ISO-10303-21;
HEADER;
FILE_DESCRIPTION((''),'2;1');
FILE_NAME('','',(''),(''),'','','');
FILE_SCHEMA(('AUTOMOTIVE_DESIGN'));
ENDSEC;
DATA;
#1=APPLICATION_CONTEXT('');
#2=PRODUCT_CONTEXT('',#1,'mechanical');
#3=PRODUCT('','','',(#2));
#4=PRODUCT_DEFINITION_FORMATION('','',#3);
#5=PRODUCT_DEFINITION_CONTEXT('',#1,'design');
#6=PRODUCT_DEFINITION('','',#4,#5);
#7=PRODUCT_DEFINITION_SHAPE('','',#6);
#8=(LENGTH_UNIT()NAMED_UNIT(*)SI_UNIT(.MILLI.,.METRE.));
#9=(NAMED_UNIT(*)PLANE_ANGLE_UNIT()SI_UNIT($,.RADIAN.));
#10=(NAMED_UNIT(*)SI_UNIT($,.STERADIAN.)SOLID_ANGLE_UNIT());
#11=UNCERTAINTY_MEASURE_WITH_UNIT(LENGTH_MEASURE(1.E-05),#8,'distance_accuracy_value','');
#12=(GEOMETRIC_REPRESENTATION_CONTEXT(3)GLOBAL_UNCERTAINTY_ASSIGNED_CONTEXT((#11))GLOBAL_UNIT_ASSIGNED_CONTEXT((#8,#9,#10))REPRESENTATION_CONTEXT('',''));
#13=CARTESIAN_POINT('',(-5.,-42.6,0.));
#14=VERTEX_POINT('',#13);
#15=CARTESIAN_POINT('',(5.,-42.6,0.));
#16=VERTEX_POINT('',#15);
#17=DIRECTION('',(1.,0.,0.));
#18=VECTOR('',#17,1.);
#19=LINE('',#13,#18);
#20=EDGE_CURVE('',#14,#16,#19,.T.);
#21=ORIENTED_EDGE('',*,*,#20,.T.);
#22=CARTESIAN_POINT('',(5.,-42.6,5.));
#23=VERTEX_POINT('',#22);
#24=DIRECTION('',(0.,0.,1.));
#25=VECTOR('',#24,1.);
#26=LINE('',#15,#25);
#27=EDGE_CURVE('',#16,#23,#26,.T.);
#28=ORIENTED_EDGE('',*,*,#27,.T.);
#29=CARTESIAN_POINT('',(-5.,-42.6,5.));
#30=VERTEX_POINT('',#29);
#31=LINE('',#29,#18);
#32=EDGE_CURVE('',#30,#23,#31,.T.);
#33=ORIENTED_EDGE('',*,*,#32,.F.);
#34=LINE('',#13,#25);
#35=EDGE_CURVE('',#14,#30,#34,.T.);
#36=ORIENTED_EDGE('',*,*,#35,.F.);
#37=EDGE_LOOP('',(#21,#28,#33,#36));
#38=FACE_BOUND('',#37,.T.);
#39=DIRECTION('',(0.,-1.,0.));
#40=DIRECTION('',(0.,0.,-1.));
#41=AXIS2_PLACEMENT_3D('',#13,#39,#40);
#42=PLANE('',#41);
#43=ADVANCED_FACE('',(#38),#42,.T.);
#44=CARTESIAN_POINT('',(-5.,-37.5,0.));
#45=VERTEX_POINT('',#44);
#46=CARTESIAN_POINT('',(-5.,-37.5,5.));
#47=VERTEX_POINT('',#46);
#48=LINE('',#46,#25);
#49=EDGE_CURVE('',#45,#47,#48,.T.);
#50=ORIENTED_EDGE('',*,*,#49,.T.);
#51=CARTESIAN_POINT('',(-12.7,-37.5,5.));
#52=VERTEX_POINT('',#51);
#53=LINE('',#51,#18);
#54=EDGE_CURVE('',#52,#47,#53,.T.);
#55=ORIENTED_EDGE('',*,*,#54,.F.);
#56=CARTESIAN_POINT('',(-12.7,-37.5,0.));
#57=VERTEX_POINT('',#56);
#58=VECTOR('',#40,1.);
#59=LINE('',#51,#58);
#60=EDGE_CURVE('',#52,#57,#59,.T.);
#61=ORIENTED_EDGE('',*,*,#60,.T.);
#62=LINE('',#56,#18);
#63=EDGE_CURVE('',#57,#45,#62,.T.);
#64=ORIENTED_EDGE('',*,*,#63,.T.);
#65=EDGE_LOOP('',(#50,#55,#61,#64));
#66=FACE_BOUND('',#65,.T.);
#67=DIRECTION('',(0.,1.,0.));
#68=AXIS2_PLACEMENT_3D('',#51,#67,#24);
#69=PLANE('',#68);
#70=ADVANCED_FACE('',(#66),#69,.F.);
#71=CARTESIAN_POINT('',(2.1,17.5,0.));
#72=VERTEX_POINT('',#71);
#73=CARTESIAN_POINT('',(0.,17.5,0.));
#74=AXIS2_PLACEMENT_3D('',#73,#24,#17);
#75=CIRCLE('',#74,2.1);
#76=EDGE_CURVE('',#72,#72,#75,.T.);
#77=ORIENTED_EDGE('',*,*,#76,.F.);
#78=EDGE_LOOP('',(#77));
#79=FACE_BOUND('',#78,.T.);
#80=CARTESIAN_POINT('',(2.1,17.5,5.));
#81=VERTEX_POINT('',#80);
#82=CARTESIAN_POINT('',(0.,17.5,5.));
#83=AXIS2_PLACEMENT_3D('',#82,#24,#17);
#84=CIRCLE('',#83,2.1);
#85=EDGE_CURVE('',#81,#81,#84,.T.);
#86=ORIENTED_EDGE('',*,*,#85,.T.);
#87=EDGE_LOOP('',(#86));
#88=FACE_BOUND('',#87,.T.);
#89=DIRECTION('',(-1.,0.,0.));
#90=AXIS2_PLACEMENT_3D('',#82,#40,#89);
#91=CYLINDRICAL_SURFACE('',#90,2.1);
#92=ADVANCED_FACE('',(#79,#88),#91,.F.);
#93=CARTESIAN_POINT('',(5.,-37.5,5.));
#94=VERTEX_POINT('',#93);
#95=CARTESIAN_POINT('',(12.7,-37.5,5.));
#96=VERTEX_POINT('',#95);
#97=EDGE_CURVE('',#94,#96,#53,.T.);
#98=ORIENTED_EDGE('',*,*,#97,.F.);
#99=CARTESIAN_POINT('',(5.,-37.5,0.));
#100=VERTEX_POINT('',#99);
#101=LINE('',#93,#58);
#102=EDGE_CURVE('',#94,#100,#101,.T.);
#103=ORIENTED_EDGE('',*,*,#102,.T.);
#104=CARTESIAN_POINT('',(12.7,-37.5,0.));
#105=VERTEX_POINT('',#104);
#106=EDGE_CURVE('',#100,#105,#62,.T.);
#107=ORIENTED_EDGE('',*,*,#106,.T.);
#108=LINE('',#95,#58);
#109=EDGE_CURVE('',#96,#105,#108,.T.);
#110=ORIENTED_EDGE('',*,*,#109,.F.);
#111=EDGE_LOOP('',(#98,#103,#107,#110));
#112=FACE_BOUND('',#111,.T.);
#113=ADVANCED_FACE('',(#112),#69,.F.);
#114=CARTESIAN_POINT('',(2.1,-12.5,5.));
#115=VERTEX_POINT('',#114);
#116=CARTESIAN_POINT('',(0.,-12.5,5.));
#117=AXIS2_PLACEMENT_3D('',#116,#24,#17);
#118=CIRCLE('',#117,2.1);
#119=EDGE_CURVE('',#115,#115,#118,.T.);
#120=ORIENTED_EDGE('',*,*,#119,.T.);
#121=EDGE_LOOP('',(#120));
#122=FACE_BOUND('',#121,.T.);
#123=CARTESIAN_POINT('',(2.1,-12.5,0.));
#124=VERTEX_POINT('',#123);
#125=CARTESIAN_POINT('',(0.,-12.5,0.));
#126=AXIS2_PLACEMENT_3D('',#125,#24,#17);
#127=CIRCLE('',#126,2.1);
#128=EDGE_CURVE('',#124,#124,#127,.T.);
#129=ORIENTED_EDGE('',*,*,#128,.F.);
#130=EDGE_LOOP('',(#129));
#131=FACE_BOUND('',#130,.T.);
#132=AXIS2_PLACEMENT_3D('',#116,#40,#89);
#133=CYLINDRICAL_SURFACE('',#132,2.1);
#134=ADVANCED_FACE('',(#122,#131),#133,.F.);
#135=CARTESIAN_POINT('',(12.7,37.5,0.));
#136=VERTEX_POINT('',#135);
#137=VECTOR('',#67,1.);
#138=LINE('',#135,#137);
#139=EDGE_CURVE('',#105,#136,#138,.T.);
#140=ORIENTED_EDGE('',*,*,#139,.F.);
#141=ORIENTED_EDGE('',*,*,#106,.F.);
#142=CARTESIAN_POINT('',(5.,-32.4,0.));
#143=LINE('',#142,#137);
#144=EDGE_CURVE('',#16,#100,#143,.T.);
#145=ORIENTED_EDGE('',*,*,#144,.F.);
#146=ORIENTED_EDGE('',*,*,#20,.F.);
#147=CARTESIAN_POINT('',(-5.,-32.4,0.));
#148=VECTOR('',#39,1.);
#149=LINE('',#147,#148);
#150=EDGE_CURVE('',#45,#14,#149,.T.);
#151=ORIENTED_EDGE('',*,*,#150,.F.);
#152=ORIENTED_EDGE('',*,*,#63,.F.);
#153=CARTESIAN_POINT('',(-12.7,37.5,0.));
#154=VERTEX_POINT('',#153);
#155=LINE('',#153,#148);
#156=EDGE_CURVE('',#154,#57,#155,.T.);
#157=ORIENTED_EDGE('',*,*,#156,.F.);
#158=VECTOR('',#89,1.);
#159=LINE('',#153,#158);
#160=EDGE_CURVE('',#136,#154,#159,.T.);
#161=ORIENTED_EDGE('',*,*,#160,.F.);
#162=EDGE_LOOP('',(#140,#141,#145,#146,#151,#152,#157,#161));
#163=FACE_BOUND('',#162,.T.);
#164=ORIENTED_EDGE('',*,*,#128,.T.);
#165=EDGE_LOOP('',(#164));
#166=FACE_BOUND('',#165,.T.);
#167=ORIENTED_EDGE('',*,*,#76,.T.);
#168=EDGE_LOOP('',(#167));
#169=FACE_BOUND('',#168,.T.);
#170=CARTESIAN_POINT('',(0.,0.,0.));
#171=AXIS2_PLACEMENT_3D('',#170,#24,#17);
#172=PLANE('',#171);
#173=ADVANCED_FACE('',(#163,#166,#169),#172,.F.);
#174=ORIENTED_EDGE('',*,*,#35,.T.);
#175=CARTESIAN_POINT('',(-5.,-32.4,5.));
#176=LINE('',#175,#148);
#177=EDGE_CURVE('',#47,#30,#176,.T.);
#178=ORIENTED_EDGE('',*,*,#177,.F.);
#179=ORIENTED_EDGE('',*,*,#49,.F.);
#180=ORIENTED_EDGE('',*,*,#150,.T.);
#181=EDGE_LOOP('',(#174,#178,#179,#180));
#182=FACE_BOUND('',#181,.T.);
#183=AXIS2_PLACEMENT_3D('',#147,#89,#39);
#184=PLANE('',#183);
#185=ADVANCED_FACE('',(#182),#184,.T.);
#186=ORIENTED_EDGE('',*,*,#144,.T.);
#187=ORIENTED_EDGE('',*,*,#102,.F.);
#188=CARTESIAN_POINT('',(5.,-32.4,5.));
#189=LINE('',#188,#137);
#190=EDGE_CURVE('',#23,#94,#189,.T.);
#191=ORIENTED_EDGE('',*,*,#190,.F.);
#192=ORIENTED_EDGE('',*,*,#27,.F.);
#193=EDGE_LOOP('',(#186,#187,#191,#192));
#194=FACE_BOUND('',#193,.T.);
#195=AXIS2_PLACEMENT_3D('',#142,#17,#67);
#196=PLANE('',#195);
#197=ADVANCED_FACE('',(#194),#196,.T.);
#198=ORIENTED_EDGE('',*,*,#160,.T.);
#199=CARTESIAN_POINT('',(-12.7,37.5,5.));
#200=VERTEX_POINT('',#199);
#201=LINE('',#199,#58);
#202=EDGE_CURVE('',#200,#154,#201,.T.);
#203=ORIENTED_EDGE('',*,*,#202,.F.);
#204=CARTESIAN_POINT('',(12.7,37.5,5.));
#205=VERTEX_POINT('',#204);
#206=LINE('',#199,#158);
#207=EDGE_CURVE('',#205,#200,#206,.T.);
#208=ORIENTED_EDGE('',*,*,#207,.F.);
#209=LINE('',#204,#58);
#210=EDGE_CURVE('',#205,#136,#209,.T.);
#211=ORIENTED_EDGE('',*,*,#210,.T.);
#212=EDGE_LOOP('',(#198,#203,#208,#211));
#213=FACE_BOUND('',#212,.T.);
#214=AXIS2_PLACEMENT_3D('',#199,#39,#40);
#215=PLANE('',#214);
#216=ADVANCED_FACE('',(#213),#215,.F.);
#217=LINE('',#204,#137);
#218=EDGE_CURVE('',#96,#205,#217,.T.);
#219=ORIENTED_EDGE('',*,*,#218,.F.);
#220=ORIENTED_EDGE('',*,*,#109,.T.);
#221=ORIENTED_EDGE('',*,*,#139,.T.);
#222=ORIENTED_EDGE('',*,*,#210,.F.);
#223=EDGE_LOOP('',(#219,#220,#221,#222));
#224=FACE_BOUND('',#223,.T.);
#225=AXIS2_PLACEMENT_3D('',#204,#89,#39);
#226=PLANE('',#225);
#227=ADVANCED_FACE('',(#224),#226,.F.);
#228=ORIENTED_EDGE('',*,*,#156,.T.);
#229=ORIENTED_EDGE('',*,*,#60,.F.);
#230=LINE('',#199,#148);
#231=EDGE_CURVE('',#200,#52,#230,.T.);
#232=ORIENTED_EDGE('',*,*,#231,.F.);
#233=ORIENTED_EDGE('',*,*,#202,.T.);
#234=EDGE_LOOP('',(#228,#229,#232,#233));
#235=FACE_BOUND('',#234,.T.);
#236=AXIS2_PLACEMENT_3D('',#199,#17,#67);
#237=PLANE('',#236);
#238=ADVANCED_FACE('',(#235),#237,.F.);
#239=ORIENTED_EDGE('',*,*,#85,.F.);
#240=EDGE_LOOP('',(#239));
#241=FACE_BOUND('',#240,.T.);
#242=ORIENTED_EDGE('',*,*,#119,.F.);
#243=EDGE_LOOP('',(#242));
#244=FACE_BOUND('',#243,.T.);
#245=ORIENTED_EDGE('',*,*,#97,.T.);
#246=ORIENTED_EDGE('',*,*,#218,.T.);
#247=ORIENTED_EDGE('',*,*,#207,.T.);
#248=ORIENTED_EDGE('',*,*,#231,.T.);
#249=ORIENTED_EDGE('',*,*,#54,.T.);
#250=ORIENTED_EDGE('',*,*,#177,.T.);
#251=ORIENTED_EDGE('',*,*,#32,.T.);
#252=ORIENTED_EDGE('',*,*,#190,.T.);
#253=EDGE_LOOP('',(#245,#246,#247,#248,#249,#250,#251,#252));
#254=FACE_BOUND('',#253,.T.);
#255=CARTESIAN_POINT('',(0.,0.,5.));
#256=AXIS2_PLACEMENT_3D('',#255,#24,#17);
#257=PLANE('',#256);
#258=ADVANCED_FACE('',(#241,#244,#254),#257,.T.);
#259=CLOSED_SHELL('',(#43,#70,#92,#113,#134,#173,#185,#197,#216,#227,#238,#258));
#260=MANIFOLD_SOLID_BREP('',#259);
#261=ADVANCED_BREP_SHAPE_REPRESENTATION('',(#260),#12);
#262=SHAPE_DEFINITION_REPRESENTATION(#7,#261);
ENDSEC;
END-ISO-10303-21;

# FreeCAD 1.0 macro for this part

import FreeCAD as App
import Part
import Sketcher

V = App.Vector
Q = App.Units.Quantity


def add_polygon(sketch, points):
    """Adds a closed chain of lines whose ends are joined by coincident constraints."""
    first, n = sketch.GeometryCount, len(points)
    for a, b in zip(points, points[1:] + points[:1]):
        sketch.addGeometry(Part.LineSegment(App.Vector(*a, 0), App.Vector(*b, 0)), False)
    for i in range(n):
        sketch.addConstraint(Sketcher.Constraint("Coincident", first + i, 2, first + (i + 1) % n, 1))

doc = App.newDocument("Part")
body = doc.addObject("PartDesign::Body", "Body")

# Sketch on XY plane
sketch1 = doc.addObject("Sketcher::SketchObject", "Sketch")
body.addObject(sketch1)
sketch1.AttachmentSupport = (doc.XY_Plane, [""])
sketch1.MapMode = "FlatFace"
add_polygon(sketch1, [(-12.7, 37.5), (-12.7, -37.5), (12.7, -37.5), (12.7, 37.5)])  # lines 0-3
sketch1.addGeometry(Part.Circle(V(0, -12.5, 0), V(0, 0, 1), 2.1), False)  # 4
sketch1.addGeometry(Part.Circle(V(0, 17.5, 0), V(0, 0, 1), 2.1), False)  # 5
sketch1.addConstraint([
    Sketcher.Constraint("Vertical", 0),
    Sketcher.Constraint("Horizontal", 1),
    Sketcher.Constraint("Vertical", 2),
    Sketcher.Constraint("Horizontal", 3),
    Sketcher.Constraint("Equal", 4, 5),
    Sketcher.Constraint("Symmetric", 0, 2, 2, 2, -1, 1),
    Sketcher.Constraint("PointOnObject", 4, 3, -2),
    Sketcher.Constraint("PointOnObject", 5, 3, -2),
    Sketcher.Constraint("Diameter", 4, Q("4.2 mm")),
    Sketcher.Constraint("DistanceY", 0, 2, 0, 1, Q("75 mm")),
    Sketcher.Constraint("DistanceX", 1, 1, 1, 2, Q("25.4 mm")),
    Sketcher.Constraint("DistanceY", 4, 3, 5, 3, Q("30 mm")),
    Sketcher.Constraint("DistanceY", 0, 2, 4, 3, Q("25 mm")),
])
pad1 = doc.addObject("PartDesign::Pad", "Pad")
body.addObject(pad1)
pad1.Profile = sketch1
pad1.Length = 5

# Sketch on XY plane
sketch2 = doc.addObject("Sketcher::SketchObject", "Sketch001")
body.addObject(sketch2)
sketch2.AttachmentSupport = (doc.XY_Plane, [""])
sketch2.MapMode = "FlatFace"
sketch2.AttachmentOffset = App.Placement(V(0, 0, 5), App.Rotation())
add_polygon(sketch2, [(-5, -32), (-5, -43), (5, -43), (5, -32)])  # lines 0-3
sketch2.addConstraint([
    Sketcher.Constraint("Vertical", 0),
    Sketcher.Constraint("Horizontal", 1),
    Sketcher.Constraint("Vertical", 2),
    Sketcher.Constraint("Horizontal", 3),
    Sketcher.Constraint("DistanceX", 1, 1, 1, 2, Q("10 mm")),
    Sketcher.Constraint("DistanceY", 0, 2, 0, 1, Q("10.2 mm")),
    Sketcher.Constraint("DistanceX", 0, 2, -1, 1, Q("5 mm")),
    Sketcher.Constraint("DistanceY", 0, 2, -1, 1, Q("42.6 mm")),
])
pad2 = doc.addObject("PartDesign::Pad", "Pad001")
body.addObject(pad2)
pad2.Profile = sketch2
pad2.Length = 5
pad2.Reversed = True

doc.recompute()
